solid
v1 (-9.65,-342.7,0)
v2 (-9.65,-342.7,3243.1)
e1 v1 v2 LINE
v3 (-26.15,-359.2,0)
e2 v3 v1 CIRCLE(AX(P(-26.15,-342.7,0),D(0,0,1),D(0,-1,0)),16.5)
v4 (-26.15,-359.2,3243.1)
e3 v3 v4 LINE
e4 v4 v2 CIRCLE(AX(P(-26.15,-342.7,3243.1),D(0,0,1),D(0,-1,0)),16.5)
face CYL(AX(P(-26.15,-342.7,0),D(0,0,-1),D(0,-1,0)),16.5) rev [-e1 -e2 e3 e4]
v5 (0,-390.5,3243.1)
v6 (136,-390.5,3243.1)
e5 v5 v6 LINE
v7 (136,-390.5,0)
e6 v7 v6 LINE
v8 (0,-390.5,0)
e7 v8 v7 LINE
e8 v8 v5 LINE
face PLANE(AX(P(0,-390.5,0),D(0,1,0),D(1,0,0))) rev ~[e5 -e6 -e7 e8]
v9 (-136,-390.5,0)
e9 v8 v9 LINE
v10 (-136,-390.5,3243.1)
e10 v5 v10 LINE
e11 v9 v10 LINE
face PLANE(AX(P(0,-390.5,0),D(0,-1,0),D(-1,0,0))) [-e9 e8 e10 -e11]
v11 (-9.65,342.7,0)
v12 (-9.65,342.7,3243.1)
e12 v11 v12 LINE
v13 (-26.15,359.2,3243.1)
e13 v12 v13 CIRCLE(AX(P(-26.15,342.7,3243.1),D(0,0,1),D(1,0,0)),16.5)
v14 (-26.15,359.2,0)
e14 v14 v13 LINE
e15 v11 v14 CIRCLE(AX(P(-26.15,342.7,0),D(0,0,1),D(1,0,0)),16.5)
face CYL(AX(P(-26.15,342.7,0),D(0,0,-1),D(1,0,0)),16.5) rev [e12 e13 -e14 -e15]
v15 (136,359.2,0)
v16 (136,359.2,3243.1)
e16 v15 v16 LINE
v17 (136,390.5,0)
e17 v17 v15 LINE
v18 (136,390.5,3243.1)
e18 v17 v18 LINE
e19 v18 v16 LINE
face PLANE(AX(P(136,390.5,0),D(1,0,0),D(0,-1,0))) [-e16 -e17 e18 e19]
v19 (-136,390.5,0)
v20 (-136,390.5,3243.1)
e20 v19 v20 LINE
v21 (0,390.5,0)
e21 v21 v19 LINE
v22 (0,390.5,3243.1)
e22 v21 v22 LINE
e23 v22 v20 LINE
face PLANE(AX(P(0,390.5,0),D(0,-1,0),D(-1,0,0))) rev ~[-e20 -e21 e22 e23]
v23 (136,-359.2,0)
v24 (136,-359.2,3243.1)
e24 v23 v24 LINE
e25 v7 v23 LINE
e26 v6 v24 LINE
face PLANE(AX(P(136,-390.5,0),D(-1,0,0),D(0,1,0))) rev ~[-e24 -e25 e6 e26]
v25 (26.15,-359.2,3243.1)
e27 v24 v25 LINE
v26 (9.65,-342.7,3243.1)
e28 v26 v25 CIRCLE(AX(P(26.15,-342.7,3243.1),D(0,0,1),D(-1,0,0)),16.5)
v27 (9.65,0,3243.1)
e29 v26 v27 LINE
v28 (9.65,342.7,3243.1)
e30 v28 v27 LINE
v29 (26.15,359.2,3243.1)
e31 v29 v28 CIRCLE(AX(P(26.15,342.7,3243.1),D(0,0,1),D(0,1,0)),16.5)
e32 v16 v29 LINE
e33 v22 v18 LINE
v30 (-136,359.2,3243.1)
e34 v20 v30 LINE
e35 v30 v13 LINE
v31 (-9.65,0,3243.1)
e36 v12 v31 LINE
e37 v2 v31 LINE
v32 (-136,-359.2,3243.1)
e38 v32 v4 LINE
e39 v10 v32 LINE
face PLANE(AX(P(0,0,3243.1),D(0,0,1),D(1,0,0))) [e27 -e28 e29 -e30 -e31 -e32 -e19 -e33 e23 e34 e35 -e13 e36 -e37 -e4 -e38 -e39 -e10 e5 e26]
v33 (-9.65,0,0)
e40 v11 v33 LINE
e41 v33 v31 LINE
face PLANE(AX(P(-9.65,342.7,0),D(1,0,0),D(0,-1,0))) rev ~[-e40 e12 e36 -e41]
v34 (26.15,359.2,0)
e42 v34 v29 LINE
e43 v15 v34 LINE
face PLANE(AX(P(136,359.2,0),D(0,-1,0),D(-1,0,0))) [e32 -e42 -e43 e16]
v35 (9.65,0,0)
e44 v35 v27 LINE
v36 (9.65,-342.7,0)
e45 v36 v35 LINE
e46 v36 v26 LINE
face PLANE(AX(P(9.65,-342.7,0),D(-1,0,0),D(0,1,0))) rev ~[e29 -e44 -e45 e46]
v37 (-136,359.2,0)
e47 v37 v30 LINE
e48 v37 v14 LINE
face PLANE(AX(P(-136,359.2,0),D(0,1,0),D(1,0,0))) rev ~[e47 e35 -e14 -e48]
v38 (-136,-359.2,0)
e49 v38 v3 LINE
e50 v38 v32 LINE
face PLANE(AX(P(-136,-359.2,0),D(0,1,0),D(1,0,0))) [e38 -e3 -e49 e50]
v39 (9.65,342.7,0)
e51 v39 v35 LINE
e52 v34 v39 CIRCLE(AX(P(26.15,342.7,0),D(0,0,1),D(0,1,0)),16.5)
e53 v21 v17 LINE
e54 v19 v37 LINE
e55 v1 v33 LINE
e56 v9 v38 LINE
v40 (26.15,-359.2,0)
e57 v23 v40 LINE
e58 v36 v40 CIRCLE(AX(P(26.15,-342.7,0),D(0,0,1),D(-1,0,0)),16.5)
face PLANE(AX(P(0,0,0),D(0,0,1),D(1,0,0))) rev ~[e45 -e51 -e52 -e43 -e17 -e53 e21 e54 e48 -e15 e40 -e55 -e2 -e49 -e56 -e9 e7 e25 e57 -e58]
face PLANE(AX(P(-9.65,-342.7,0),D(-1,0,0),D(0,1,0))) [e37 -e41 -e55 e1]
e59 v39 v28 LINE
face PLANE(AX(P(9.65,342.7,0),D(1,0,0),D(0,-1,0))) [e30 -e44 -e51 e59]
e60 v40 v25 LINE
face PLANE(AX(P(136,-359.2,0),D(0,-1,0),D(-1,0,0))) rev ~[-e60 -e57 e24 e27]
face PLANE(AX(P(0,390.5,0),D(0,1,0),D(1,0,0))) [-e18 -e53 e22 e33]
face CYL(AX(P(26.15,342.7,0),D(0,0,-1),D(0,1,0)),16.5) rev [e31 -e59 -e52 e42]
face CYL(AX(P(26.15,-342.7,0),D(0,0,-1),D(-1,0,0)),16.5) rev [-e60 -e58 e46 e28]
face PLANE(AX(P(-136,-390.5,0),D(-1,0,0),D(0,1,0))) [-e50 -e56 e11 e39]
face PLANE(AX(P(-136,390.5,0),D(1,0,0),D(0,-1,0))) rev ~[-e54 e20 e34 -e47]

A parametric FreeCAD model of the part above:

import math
import FreeCAD as App
import Part
import Sketcher

V = App.Vector

doc = App.newDocument("Part")
body = doc.addObject("PartDesign::Body", "Body")

# Sketch on XY plane
sketch1 = body.newObject("Sketcher::SketchObject", "Sketch")
sketch1.AttachmentSupport = (doc.getObject("XY_Plane"), [""])
sketch1.MapMode = "FlatFace"
sketch1.addGeometry([
    Part.LineSegment(V(-136, -359, 0), V(-136, -390, 0)),  # 0
    Part.LineSegment(V(-136, -390, 0), V(136, -390, 0)),  # 1
    Part.LineSegment(V(136, -390, 0), V(136, -359, 0)),  # 2
    Part.LineSegment(V(136, -359, 0), V(26, -359, 0)),  # 3
    Part.ArcOfCircle(Part.Circle(V(26, -343, 0), V(0, 0, 1), 16), math.radians(180), math.radians(270)),  # 4
    Part.LineSegment(V(10, -343, 0), V(10, 343, 0)),  # 5
    Part.ArcOfCircle(Part.Circle(V(26, 343, 0), V(0, 0, 1), 16), math.radians(90), math.radians(180)),  # 6
    Part.LineSegment(V(26, 359, 0), V(136, 359, 0)),  # 7
    Part.LineSegment(V(136, 359, 0), V(136, 390, 0)),  # 8
    Part.LineSegment(V(136, 390, 0), V(-136, 390, 0)),  # 9
    Part.LineSegment(V(-136, 390, 0), V(-136, 359, 0)),  # 10
    Part.LineSegment(V(-136, 359, 0), V(-26, 359, 0)),  # 11
    Part.ArcOfCircle(Part.Circle(V(-26, 343, 0), V(0, 0, 1), 16), math.radians(0), math.radians(90)),  # 12
    Part.LineSegment(V(-10, 343, 0), V(-10, -343, 0)),  # 13
    Part.ArcOfCircle(Part.Circle(V(-26, -343, 0), V(0, 0, 1), 16), math.radians(-90), math.radians(0)),  # 14
    Part.LineSegment(V(-26, -359, 0), V(-136, -359, 0)),  # 15
], False)
sketch1.addConstraint([
    Sketcher.Constraint("Coincident", 0, 2, 1, 1),
    Sketcher.Constraint("Coincident", 1, 2, 2, 1),
    Sketcher.Constraint("Coincident", 2, 2, 3, 1),
    Sketcher.Constraint("Tangent", 3, 2, 4, 2),
    Sketcher.Constraint("Tangent", 4, 1, 5, 1),
    Sketcher.Constraint("Tangent", 5, 2, 6, 2),
    Sketcher.Constraint("Tangent", 6, 1, 7, 1),
    Sketcher.Constraint("Coincident", 7, 2, 8, 1),
    Sketcher.Constraint("Coincident", 8, 2, 9, 1),
    Sketcher.Constraint("Coincident", 9, 2, 10, 1),
    Sketcher.Constraint("Coincident", 10, 2, 11, 1),
    Sketcher.Constraint("Tangent", 11, 2, 12, 2),
    Sketcher.Constraint("Tangent", 12, 1, 13, 1),
    Sketcher.Constraint("Tangent", 13, 2, 14, 2),
    Sketcher.Constraint("Tangent", 14, 1, 15, 1),
    Sketcher.Constraint("Coincident", 15, 2, 0, 1),
    Sketcher.Constraint("Vertical", 0),
    Sketcher.Constraint("Horizontal", 1),
    Sketcher.Constraint("Vertical", 2),
    Sketcher.Constraint("Horizontal", 3),
    Sketcher.Constraint("Vertical", 5),
    Sketcher.Constraint("Horizontal", 7),
    Sketcher.Constraint("Vertical", 8),
    Sketcher.Constraint("Horizontal", 9),
    Sketcher.Constraint("Vertical", 10),
    Sketcher.Constraint("Horizontal", 11),
    Sketcher.Constraint("Vertical", 13),
    Sketcher.Constraint("Horizontal", 15),
    Sketcher.Constraint("Equal", 4, 6),
    Sketcher.Constraint("Equal", 6, 12),
    Sketcher.Constraint("Equal", 12, 14),
    Sketcher.Constraint("Symmetric", 4, 3, 12, 3, -1, 1),
    Sketcher.Constraint("Symmetric", 0, 2, 8, 2, -1, 1),
    Sketcher.Constraint("Symmetric", 7, 2, 10, 2, -2),
    Sketcher.Constraint("Symmetric", 2, 2, 15, 2, -2),
    Sketcher.Constraint("Radius", 4, 16.5),
    Sketcher.Constraint("DistanceY", 0, 2, 0, 1, 31.3),
    Sketcher.Constraint("DistanceX", 0, 2, -1, 1, 136.0),
    Sketcher.Constraint("DistanceY", 0, 2, -1, 1, 390.5),
    Sketcher.Constraint("DistanceX", -1, 1, 4, 1, 9.65),
])
pad1 = body.newObject("PartDesign::Pad", "Pad")
pad1.Profile = sketch1
pad1.Length = 3243.1

doc.recompute()
